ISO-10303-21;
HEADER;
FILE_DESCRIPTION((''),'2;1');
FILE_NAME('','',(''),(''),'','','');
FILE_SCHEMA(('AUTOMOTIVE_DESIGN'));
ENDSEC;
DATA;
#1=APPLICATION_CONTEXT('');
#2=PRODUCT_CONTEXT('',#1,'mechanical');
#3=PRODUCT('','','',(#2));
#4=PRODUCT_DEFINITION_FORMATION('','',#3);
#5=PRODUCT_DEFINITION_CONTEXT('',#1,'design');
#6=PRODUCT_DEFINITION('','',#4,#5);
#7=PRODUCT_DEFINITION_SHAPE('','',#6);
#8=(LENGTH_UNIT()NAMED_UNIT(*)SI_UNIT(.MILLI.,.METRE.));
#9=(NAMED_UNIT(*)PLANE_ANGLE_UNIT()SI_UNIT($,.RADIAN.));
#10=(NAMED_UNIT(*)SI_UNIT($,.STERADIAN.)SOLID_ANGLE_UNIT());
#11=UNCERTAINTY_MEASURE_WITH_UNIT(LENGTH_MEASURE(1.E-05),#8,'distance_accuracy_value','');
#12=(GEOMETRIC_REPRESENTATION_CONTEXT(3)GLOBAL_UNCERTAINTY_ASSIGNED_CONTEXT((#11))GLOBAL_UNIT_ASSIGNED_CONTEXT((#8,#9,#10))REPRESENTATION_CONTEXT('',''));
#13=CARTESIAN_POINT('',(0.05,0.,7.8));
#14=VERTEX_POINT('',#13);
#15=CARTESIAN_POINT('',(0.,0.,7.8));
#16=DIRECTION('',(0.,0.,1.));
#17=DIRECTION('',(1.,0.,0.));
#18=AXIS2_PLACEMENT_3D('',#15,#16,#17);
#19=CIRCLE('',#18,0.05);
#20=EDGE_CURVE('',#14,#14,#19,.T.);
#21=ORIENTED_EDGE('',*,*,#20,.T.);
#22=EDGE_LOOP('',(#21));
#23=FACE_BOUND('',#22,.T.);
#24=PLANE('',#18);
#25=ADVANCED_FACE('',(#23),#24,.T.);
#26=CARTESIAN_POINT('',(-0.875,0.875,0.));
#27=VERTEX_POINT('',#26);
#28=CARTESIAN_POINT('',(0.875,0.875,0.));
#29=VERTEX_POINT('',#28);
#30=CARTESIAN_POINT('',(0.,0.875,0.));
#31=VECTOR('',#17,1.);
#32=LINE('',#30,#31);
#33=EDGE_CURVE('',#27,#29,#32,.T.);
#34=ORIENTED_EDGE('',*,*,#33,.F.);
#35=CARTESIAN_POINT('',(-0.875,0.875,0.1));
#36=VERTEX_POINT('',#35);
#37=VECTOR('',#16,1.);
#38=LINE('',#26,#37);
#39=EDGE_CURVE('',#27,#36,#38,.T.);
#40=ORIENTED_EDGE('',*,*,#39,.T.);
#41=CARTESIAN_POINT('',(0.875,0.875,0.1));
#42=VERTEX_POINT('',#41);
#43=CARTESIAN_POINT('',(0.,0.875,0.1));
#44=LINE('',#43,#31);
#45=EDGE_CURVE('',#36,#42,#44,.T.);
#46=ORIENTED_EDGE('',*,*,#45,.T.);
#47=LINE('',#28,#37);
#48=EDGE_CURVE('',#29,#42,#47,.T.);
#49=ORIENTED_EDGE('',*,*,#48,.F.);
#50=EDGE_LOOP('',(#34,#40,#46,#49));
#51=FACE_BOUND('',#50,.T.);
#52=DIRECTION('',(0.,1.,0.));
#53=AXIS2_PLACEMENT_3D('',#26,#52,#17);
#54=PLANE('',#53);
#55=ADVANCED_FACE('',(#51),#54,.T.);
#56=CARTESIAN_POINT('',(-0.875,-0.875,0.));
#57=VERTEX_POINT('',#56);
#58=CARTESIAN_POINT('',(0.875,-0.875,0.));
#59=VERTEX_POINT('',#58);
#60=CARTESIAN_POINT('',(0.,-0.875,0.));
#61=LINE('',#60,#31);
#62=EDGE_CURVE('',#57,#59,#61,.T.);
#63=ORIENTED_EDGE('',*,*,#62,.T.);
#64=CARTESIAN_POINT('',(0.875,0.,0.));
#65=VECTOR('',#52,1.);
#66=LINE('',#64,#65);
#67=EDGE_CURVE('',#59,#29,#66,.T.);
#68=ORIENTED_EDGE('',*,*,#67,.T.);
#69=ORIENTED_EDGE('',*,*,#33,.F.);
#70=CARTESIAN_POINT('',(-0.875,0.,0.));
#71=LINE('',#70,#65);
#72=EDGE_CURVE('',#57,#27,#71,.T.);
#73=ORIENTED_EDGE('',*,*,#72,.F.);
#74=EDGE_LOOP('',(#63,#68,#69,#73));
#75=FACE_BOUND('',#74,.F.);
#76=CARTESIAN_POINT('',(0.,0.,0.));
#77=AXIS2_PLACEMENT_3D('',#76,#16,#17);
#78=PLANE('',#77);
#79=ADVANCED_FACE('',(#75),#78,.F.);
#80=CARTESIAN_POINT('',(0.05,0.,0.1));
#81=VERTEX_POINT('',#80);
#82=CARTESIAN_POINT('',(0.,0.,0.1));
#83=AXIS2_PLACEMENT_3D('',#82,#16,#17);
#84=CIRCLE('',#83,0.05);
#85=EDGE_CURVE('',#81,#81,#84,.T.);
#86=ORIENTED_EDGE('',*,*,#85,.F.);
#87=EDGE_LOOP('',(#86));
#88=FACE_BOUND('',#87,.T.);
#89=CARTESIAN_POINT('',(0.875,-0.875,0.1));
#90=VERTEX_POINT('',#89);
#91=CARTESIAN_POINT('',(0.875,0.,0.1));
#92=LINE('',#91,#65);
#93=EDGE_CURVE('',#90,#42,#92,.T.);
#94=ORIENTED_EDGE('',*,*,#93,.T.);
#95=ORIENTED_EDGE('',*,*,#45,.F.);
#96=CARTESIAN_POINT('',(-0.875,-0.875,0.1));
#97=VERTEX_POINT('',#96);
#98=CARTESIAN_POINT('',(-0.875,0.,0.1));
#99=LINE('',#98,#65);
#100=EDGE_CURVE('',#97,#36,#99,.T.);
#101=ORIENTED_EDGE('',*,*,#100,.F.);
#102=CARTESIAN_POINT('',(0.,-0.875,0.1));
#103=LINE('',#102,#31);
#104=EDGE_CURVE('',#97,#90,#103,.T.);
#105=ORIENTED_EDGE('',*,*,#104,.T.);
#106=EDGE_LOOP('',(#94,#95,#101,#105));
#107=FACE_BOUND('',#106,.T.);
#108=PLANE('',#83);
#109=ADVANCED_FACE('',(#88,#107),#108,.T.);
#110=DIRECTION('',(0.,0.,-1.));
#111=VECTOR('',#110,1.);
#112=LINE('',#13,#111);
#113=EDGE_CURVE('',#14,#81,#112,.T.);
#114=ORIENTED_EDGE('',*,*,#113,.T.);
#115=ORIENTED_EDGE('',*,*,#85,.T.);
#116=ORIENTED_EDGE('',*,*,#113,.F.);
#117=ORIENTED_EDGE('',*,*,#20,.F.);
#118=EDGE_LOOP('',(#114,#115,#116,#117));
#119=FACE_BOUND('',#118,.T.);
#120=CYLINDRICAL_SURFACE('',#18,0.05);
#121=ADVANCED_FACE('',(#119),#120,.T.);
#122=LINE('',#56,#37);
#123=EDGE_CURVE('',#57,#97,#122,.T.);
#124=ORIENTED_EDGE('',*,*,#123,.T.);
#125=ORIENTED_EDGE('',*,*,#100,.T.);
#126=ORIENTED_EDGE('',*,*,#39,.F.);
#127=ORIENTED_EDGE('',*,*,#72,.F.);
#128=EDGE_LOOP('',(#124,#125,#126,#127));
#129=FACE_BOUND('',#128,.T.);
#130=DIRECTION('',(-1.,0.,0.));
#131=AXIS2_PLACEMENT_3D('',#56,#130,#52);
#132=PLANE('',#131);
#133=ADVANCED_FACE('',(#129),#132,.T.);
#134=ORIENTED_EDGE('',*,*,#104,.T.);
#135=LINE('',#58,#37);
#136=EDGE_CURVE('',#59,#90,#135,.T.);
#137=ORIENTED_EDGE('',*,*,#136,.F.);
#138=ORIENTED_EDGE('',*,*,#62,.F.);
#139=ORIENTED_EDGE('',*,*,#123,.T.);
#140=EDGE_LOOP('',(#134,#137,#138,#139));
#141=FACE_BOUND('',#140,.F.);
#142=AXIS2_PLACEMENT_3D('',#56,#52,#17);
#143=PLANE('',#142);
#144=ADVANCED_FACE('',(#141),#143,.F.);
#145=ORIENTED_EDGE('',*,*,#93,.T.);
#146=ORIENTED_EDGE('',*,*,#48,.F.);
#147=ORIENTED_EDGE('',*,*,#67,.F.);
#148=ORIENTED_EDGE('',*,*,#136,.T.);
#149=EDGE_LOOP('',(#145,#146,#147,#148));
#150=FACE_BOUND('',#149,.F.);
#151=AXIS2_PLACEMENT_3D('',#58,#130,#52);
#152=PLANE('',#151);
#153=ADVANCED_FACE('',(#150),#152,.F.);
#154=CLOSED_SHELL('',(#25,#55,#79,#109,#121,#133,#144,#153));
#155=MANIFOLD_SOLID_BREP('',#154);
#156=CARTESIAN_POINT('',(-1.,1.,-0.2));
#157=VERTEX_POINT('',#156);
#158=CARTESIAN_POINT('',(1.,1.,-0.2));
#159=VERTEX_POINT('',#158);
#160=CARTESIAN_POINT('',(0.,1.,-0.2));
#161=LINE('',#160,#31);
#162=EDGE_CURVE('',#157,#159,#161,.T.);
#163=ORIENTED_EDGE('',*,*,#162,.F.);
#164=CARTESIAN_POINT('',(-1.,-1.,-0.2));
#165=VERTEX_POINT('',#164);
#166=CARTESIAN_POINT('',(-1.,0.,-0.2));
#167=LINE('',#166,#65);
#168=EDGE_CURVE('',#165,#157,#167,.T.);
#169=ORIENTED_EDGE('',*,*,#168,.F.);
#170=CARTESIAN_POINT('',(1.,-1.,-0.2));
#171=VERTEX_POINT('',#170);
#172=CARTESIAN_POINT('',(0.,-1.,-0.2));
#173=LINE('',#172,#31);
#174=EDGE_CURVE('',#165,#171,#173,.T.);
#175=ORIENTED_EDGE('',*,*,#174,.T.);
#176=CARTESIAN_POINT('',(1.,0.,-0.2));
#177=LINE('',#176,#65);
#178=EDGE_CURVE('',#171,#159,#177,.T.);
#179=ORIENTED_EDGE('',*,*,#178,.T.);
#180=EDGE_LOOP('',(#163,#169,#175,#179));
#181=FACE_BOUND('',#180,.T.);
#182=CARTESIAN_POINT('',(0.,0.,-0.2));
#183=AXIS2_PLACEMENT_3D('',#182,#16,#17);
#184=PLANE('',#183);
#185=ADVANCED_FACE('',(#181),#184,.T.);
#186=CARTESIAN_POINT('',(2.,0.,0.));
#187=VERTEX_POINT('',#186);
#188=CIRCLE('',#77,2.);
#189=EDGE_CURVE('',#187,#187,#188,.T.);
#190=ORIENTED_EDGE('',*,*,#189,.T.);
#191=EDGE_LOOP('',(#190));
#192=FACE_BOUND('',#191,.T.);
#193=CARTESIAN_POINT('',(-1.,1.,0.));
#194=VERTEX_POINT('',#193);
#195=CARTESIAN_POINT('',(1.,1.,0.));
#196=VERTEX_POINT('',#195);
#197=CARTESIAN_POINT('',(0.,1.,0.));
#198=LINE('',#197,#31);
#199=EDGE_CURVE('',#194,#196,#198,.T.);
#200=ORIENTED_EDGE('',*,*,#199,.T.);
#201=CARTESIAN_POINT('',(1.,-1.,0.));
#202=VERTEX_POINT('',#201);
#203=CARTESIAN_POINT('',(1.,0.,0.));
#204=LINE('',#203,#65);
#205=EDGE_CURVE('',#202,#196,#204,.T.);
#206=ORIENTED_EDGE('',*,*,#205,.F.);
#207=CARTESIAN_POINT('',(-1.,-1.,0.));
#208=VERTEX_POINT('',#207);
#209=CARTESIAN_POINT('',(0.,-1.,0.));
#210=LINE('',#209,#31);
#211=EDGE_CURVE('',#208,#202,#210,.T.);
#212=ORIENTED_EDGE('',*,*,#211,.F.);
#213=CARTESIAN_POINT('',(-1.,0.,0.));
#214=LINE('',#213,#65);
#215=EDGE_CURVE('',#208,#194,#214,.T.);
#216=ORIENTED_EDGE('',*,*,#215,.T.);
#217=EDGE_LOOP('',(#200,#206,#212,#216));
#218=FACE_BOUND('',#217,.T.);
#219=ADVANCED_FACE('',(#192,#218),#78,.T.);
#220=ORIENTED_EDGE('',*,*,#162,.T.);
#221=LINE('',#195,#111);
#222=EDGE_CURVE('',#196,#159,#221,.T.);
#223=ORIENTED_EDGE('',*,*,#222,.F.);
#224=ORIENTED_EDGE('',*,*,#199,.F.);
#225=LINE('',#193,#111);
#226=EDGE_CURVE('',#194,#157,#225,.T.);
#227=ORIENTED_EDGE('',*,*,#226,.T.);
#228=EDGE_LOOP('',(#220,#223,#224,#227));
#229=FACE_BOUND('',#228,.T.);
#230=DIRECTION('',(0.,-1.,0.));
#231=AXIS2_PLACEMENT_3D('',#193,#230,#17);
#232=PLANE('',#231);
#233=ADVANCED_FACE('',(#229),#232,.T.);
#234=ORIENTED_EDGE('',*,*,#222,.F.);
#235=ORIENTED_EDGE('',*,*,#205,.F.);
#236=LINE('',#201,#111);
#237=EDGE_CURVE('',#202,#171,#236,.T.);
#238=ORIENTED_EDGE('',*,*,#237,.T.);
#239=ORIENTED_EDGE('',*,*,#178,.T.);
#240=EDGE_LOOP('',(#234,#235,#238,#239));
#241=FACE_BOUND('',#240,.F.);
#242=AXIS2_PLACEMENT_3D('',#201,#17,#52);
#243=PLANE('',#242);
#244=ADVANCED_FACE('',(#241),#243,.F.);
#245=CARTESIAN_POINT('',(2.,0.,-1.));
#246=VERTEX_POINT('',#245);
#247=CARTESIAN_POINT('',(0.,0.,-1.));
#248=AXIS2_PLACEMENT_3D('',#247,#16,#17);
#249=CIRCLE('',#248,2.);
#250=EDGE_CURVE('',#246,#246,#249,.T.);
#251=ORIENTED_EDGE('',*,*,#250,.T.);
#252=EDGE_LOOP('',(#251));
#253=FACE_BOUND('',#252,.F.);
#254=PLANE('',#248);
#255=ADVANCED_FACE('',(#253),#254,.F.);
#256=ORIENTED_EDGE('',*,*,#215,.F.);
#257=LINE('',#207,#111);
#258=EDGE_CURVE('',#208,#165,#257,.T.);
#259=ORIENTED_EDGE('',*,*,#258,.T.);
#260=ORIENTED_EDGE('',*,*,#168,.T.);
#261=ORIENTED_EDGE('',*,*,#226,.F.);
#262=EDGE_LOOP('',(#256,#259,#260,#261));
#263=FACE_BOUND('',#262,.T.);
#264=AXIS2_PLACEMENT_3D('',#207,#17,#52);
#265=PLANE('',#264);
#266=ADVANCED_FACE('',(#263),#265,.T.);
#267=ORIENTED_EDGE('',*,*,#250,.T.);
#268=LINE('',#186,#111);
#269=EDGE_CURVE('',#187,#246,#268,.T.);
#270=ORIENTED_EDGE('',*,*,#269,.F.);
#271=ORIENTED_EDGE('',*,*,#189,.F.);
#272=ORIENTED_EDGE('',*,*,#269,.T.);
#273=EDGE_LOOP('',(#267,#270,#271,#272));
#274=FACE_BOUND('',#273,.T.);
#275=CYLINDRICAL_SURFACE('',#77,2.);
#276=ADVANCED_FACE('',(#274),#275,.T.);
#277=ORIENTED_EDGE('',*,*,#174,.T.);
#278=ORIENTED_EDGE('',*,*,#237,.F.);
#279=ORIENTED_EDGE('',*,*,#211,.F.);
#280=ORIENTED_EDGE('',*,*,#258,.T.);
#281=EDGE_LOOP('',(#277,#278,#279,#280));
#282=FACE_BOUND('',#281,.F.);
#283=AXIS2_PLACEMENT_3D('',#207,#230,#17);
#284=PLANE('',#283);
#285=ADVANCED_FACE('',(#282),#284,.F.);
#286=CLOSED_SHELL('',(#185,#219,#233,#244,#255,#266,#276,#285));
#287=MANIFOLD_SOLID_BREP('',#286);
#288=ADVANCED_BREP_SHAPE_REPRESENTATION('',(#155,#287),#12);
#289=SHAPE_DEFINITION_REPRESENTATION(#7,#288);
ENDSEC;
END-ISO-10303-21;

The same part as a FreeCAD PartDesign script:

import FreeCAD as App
import Part
import Sketcher

V = App.Vector

doc = App.newDocument("Part")
body = doc.addObject("PartDesign::Body", "Body")

# Sketch on XY plane
sketch1 = body.newObject("Sketcher::SketchObject", "Sketch")
sketch1.AttachmentSupport = (doc.getObject("XY_Plane"), [""])
sketch1.MapMode = "FlatFace"
sketch1.AttachmentOffset = App.Placement(V(0, 0, 7.8), App.Rotation())
sketch1.addGeometry(Part.Circle(V(0, 0, 0), V(0, 0, 1), 0.05), False)
sketch1.addConstraint([
    Sketcher.Constraint("Coincident", 0, 3, -1, 1),
    Sketcher.Constraint("Diameter", 0, 0.1),
])
pad1 = body.newObject("PartDesign::Pad", "Pad")
pad1.Profile = sketch1
pad1.Length = 7.8
pad1.Reversed = True

# Sketch on XY plane
sketch2 = body.newObject("Sketcher::SketchObject", "Sketch001")
sketch2.AttachmentSupport = (doc.getObject("XY_Plane"), [""])
sketch2.MapMode = "FlatFace"
sketch2.addGeometry([
    Part.LineSegment(V(-0.9, 0.9, 0), V(-0.9, -0.9, 0)),
    Part.LineSegment(V(-0.9, -0.9, 0), V(0.9, -0.9, 0)),
    Part.LineSegment(V(0.9, -0.9, 0), V(0.9, 0.9, 0)),
    Part.LineSegment(V(0.9, 0.9, 0), V(-0.9, 0.9, 0)),
], False)
sketch2.addConstraint([
    Sketcher.Constraint("Coincident", 0, 2, 1, 1),
    Sketcher.Constraint("Coincident", 1, 2, 2, 1),
    Sketcher.Constraint("Coincident", 2, 2, 3, 1),
    Sketcher.Constraint("Coincident", 3, 2, 0, 1),
    Sketcher.Constraint("Vertical", 0),
    Sketcher.Constraint("Horizontal", 1),
    Sketcher.Constraint("Vertical", 2),
    Sketcher.Constraint("Horizontal", 3),
    Sketcher.Constraint("Symmetric", 0, 2, 2, 2, -1, 1),
    Sketcher.Constraint("Equal", 3, 0),
    Sketcher.Constraint("DistanceX", 1, 1, 1, 2, 1.75),
])
pad2 = body.newObject("PartDesign::Pad", "Pad001")
pad2.Profile = sketch2
pad2.Length = 0.1
body2 = doc.addObject("PartDesign::Body", "Body001")

# Sketch on XY plane
sketch3 = body2.newObject("Sketcher::SketchObject", "Sketch002")
sketch3.AttachmentSupport = (doc.getObject("XY_Plane001"), [""])
sketch3.MapMode = "FlatFace"
sketch3.addGeometry(Part.Circle(V(0, 0, 0), V(0, 0, 1), 2), False)
sketch3.addConstraint([
    Sketcher.Constraint("Coincident", 0, 3, -1, 1),
    Sketcher.Constraint("Diameter", 0, 4.0),
])
pad3 = body2.newObject("PartDesign::Pad", "Pad002")
pad3.Profile = sketch3
pad3.Length = 1
pad3.Reversed = True

# Sketch on XY plane
sketch4 = body2.newObject("Sketcher::SketchObject", "Sketch003")
sketch4.AttachmentSupport = (doc.getObject("XY_Plane001"), [""])
sketch4.MapMode = "FlatFace"
sketch4.addGeometry([
    Part.LineSegment(V(-1, 1, 0), V(-1, -1, 0)),
    Part.LineSegment(V(-1, -1, 0), V(1, -1, 0)),
    Part.LineSegment(V(1, -1, 0), V(1, 1, 0)),
    Part.LineSegment(V(1, 1, 0), V(-1, 1, 0)),
], False)
sketch4.addConstraint([
    Sketcher.Constraint("Coincident", 0, 2, 1, 1),
    Sketcher.Constraint("Coincident", 1, 2, 2, 1),
    Sketcher.Constraint("Coincident", 2, 2, 3, 1),
    Sketcher.Constraint("Coincident", 3, 2, 0, 1),
    Sketcher.Constraint("Vertical", 0),
    Sketcher.Constraint("Horizontal", 1),
    Sketcher.Constraint("Vertical", 2),
    Sketcher.Constraint("Horizontal", 3),
    Sketcher.Constraint("Symmetric", 0, 2, 2, 2, -1, 1),
    Sketcher.Constraint("Equal", 3, 0),
    Sketcher.Constraint("DistanceX", 1, 1, 1, 2, 2.0),
])
pocket1 = body2.newObject("PartDesign::Pocket", "Pocket")
pocket1.Profile = sketch4
pocket1.Length = 0.2

doc.recompute()
